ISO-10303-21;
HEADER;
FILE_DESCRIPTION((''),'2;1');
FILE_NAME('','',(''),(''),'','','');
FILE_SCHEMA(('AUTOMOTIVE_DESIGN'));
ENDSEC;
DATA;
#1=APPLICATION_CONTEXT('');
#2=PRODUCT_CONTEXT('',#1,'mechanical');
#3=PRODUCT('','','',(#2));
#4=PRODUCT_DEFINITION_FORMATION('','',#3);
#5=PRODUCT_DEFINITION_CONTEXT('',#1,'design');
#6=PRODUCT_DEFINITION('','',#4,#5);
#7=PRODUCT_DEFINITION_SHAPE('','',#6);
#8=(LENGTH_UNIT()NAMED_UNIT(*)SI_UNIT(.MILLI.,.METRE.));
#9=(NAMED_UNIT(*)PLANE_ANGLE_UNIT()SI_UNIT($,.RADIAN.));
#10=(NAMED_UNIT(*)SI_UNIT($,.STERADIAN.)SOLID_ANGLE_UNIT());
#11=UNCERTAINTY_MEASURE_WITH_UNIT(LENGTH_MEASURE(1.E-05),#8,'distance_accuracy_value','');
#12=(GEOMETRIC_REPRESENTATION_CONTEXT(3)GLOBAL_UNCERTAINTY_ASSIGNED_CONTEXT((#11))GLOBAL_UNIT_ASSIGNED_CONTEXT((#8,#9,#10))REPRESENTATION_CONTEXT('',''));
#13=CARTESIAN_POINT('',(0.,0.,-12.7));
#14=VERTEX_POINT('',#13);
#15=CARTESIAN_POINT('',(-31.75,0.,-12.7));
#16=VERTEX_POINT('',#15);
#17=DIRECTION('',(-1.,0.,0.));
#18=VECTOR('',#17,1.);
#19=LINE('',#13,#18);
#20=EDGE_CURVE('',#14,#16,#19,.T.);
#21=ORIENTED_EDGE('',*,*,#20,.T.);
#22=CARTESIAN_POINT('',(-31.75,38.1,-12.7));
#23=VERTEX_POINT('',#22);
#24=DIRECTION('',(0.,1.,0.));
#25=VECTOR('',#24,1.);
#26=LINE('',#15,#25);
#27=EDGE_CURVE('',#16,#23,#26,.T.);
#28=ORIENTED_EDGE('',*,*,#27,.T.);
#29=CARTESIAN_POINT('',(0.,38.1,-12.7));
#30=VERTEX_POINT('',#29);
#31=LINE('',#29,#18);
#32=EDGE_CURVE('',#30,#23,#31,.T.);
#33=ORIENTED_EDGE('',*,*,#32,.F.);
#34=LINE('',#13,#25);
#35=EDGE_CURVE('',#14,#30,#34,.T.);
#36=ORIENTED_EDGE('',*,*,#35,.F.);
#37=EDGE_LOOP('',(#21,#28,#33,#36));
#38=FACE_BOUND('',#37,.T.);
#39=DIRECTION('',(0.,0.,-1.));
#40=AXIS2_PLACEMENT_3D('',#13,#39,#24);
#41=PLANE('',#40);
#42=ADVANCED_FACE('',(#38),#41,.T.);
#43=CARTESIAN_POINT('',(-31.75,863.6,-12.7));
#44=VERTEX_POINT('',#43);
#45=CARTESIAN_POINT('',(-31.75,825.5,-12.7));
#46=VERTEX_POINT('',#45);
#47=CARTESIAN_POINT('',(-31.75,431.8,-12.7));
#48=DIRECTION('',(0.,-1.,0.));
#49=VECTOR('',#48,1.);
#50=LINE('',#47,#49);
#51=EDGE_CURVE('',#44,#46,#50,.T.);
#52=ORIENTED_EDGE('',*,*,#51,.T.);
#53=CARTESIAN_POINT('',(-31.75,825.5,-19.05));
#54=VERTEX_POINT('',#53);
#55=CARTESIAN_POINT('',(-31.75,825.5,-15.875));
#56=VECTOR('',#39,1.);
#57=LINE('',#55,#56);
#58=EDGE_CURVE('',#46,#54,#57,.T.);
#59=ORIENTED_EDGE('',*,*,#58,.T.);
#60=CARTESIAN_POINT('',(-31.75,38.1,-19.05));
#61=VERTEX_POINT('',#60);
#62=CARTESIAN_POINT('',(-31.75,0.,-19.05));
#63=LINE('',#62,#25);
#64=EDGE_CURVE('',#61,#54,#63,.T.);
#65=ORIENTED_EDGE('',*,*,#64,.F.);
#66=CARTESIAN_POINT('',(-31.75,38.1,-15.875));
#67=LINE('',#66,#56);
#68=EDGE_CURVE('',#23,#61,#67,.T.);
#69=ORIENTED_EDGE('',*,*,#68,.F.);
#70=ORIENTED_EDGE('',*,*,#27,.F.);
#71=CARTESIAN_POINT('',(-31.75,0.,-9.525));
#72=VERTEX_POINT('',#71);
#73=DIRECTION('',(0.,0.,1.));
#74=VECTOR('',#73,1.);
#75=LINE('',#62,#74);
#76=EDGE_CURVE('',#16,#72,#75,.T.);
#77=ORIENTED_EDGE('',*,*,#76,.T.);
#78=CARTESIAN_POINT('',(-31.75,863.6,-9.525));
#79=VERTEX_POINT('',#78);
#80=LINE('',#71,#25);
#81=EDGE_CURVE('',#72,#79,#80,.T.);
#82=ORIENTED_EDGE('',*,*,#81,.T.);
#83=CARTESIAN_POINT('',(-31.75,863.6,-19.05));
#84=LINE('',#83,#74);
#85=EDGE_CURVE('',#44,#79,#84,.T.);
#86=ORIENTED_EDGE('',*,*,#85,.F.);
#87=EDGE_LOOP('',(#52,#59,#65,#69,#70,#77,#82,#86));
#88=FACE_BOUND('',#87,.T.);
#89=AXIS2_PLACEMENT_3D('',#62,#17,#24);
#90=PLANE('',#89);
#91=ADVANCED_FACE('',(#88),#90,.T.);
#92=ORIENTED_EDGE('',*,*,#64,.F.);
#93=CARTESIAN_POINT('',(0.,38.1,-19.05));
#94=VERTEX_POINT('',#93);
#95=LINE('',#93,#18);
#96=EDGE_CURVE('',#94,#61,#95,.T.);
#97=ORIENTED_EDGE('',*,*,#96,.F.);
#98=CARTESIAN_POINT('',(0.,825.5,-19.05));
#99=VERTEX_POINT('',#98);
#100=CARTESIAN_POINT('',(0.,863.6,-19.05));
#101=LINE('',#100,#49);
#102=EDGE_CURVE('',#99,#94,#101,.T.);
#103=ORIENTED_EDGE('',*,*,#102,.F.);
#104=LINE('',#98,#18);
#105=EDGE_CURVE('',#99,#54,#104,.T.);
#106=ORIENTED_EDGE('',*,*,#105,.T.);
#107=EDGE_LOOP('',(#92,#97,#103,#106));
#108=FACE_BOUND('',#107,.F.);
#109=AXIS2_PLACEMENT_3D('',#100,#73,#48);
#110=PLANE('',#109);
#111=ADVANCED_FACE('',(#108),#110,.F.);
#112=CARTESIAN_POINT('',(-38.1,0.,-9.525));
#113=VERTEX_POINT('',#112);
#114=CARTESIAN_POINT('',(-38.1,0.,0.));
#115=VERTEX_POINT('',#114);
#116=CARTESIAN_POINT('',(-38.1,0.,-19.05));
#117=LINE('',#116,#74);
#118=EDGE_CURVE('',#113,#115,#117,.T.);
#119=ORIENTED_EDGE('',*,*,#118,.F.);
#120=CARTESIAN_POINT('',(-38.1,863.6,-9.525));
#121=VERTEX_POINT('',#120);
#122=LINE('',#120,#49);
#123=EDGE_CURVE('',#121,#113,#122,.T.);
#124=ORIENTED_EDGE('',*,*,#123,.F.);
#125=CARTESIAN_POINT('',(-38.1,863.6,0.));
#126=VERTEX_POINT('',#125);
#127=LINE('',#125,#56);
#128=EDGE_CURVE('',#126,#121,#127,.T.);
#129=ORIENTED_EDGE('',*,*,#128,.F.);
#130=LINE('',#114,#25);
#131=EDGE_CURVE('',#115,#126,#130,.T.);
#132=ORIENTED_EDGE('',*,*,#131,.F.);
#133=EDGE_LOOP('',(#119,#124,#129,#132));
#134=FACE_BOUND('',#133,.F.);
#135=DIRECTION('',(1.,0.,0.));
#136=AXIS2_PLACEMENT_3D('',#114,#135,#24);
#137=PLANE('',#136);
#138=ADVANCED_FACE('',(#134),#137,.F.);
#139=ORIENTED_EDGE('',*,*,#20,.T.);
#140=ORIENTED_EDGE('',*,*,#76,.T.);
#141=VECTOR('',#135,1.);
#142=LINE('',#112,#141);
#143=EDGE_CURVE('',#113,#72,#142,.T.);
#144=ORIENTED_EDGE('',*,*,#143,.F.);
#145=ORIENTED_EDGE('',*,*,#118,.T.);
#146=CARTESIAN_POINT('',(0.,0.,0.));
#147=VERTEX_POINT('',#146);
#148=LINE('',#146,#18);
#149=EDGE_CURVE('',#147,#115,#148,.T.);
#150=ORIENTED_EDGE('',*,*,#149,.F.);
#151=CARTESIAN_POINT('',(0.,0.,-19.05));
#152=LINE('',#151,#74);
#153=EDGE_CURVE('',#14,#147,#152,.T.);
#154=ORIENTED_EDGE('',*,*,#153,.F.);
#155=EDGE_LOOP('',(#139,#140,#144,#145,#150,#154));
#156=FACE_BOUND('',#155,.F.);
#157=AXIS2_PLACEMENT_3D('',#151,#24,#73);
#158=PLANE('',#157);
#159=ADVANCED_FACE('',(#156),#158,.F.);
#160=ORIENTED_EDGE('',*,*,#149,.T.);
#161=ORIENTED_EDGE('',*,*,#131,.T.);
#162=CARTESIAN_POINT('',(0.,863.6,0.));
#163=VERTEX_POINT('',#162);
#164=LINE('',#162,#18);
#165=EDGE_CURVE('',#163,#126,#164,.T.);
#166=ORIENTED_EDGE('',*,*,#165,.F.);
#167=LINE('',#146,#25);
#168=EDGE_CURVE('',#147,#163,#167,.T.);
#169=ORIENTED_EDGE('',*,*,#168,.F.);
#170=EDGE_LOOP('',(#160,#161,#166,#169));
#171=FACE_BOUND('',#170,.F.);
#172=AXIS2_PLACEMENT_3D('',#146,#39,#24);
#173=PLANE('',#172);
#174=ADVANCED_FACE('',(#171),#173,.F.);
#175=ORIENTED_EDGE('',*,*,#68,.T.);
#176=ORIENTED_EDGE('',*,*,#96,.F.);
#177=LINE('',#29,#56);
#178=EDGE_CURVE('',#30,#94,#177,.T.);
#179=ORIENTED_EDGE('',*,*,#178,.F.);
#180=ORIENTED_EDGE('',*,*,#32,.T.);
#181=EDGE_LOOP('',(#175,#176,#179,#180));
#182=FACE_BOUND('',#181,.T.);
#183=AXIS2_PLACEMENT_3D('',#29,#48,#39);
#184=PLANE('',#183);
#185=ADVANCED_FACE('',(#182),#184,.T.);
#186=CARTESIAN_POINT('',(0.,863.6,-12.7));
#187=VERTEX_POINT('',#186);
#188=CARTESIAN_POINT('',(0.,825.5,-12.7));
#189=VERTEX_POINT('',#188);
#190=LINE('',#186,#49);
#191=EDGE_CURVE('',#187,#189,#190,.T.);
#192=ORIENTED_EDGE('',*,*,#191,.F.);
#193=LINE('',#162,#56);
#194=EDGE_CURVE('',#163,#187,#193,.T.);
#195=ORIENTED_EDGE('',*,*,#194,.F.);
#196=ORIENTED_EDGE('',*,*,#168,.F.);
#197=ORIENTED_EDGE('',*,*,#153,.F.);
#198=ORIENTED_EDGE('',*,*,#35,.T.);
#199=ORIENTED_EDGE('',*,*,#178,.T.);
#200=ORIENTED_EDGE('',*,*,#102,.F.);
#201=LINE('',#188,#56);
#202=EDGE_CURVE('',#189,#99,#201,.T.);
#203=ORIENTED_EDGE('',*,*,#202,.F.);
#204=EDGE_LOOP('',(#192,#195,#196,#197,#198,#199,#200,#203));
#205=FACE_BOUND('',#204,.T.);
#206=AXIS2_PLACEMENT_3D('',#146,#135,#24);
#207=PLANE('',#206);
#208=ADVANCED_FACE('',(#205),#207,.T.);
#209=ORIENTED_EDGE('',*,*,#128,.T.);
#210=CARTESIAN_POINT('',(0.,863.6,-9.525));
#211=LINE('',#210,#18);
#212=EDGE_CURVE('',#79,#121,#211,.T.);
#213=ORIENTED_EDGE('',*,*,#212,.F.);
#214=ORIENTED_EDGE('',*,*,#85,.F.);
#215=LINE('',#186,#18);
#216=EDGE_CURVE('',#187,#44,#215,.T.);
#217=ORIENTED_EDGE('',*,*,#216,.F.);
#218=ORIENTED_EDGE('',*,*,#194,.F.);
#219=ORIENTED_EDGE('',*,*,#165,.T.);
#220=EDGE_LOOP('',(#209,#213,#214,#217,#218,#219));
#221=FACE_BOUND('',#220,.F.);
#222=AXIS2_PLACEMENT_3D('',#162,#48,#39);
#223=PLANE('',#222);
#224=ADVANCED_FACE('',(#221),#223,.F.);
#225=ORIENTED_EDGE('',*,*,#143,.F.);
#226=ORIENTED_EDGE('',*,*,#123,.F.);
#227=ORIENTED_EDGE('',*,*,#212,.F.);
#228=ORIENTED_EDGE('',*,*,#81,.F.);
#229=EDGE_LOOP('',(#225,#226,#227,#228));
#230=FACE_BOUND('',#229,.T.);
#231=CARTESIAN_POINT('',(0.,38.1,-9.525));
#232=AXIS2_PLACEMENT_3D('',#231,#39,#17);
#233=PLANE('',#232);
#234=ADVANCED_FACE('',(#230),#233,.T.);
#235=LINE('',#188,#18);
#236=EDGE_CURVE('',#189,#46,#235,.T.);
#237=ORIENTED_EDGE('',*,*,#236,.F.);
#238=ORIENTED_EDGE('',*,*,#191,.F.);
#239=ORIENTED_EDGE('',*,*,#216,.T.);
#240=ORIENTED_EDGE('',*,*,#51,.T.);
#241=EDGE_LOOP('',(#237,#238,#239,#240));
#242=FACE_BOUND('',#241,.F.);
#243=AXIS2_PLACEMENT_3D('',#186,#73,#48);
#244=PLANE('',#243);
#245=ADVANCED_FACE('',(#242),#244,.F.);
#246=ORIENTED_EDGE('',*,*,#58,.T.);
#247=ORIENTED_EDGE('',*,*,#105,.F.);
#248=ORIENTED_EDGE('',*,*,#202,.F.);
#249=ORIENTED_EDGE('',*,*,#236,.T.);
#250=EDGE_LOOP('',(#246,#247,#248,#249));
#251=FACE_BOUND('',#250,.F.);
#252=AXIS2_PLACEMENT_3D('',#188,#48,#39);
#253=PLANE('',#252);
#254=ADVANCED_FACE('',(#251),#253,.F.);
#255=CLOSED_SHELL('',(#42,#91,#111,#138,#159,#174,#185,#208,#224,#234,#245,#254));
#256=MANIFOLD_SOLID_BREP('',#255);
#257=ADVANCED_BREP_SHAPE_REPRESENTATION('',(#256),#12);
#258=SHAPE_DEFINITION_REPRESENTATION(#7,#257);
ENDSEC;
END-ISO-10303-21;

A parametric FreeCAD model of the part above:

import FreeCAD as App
import Part
import Sketcher
Q = App.Units.Quantity

doc = App.newDocument("Part")
params = doc.addObject("Spreadsheet::Sheet", "Params")
for row, (alias, value) in enumerate([
    ("sketch1_width", "34 in"),
    ("sketch1_height", "0.75 in"),
    ("pad1_length", "1.5 in"),
    ("sketch2_width", "1.5 in"),
    ("sketch2_height", "0.25 in"),
    ("pocket1_length", "1.5 in"),
    ("sketch3_width", "1.5 in"),
    ("sketch3_height", "0.25 in"),
    ("pocket2_length", "1.5 in"),
    ("sketch4_height", "34 in"),
    ("sketch4_width", "0.25 in"),
    ("pocket3_length", "0.375 in"),
], start=1):
    params.set(f"A{row}", alias)
    params.set(f"B{row}", "=" + value)
    params.setAlias(f"B{row}", alias)

body = doc.addObject("PartDesign::Body", "Body")

# Sketch on YZ plane
sketch1 = body.newObject("Sketcher::SketchObject", "Sketch")
sketch1.AttachmentSupport = (doc.getObject("YZ_Plane"), [""])
sketch1.MapMode = "FlatFace"
sketch1.addGeometry(Part.LineSegment(App.Vector(864, 0, 0), App.Vector(0, 0, 0)), False)
sketch1.addGeometry(Part.LineSegment(App.Vector(0, 0, 0), App.Vector(0, -19, 0)), False)
sketch1.addGeometry(Part.LineSegment(App.Vector(0, -19, 0), App.Vector(864, -19, 0)), False)
sketch1.addGeometry(Part.LineSegment(App.Vector(864, -19, 0), App.Vector(864, 0, 0)), False)
sketch1.addConstraint(Sketcher.Constraint("Coincident", 0, 2, 1, 1))
sketch1.addConstraint(Sketcher.Constraint("Coincident", 1, 2, 2, 1))
sketch1.addConstraint(Sketcher.Constraint("Coincident", 2, 2, 3, 1))
sketch1.addConstraint(Sketcher.Constraint("Coincident", 3, 2, 0, 1))
sketch1.addConstraint(Sketcher.Constraint("Horizontal", 0))
sketch1.addConstraint(Sketcher.Constraint("Vertical", 1))
sketch1.addConstraint(Sketcher.Constraint("Horizontal", 2))
sketch1.addConstraint(Sketcher.Constraint("Vertical", 3))
sketch1.addConstraint(Sketcher.Constraint("Coincident", 0, 2, -1, 1))
sketch1.addConstraint(Sketcher.Constraint("DistanceX", 0, 2, 0, 1, Q("34 in")))
sketch1.addConstraint(Sketcher.Constraint("DistanceY", 1, 2, 1, 1, Q("0.75 in")))
sketch1.setExpression("Constraints[9]", "Params.sketch1_width")
sketch1.setExpression("Constraints[10]", "Params.sketch1_height")
pad1 = body.newObject("PartDesign::Pad", "Pad")
pad1.Profile = sketch1
pad1.setExpression("Length", "Params.pad1_length")
pad1.Reversed = True

# Sketch on YZ plane
sketch2 = body.newObject("Sketcher::SketchObject", "Sketch001")
sketch2.AttachmentSupport = (doc.getObject("YZ_Plane"), [""])
sketch2.MapMode = "FlatFace"
sketch2.addGeometry(Part.LineSegment(App.Vector(0, -13, 0), App.Vector(0, -19, 0)), False)
sketch2.addGeometry(Part.LineSegment(App.Vector(0, -19, 0), App.Vector(38, -19, 0)), False)
sketch2.addGeometry(Part.LineSegment(App.Vector(38, -19, 0), App.Vector(38, -13, 0)), False)
sketch2.addGeometry(Part.LineSegment(App.Vector(38, -13, 0), App.Vector(0, -13, 0)), False)
sketch2.addConstraint(Sketcher.Constraint("Coincident", 0, 2, 1, 1))
sketch2.addConstraint(Sketcher.Constraint("Coincident", 1, 2, 2, 1))
sketch2.addConstraint(Sketcher.Constraint("Coincident", 2, 2, 3, 1))
sketch2.addConstraint(Sketcher.Constraint("Coincident", 3, 2, 0, 1))
sketch2.addConstraint(Sketcher.Constraint("Vertical", 0))
sketch2.addConstraint(Sketcher.Constraint("Horizontal", 1))
sketch2.addConstraint(Sketcher.Constraint("Vertical", 2))
sketch2.addConstraint(Sketcher.Constraint("Horizontal", 3))
sketch2.addConstraint(Sketcher.Constraint("PointOnObject", 0, 2, -2))
sketch2.addConstraint(Sketcher.Constraint("DistanceX", 1, 1, 1, 2, Q("1.5 in")))
sketch2.addConstraint(Sketcher.Constraint("DistanceY", 0, 2, 0, 1, Q("0.25 in")))
sketch2.addConstraint(Sketcher.Constraint("DistanceY", 2, 2, -1, 1, Q("0.5 in")))
sketch2.setExpression("Constraints[9]", "Params.sketch2_width")
sketch2.setExpression("Constraints[10]", "Params.sketch2_height")
pocket1 = body.newObject("PartDesign::Pocket", "Pocket")
pocket1.Profile = sketch2
pocket1.setExpression("Length", "Params.pocket1_length")

# Sketch on YZ plane
sketch3 = body.newObject("Sketcher::SketchObject", "Sketch002")
sketch3.AttachmentSupport = (doc.getObject("YZ_Plane"), [""])
sketch3.MapMode = "FlatFace"
sketch3.addGeometry(Part.LineSegment(App.Vector(826, -13, 0), App.Vector(826, -19, 0)), False)
sketch3.addGeometry(Part.LineSegment(App.Vector(826, -19, 0), App.Vector(864, -19, 0)), False)
sketch3.addGeometry(Part.LineSegment(App.Vector(864, -19, 0), App.Vector(864, -13, 0)), False)
sketch3.addGeometry(Part.LineSegment(App.Vector(864, -13, 0), App.Vector(826, -13, 0)), False)
sketch3.addConstraint(Sketcher.Constraint("Coincident", 0, 2, 1, 1))
sketch3.addConstraint(Sketcher.Constraint("Coincident", 1, 2, 2, 1))
sketch3.addConstraint(Sketcher.Constraint("Coincident", 2, 2, 3, 1))
sketch3.addConstraint(Sketcher.Constraint("Coincident", 3, 2, 0, 1))
sketch3.addConstraint(Sketcher.Constraint("Vertical", 0))
sketch3.addConstraint(Sketcher.Constraint("Horizontal", 1))
sketch3.addConstraint(Sketcher.Constraint("Vertical", 2))
sketch3.addConstraint(Sketcher.Constraint("Horizontal", 3))
sketch3.addConstraint(Sketcher.Constraint("DistanceX", 1, 1, 1, 2, Q("1.5 in")))
sketch3.addConstraint(Sketcher.Constraint("DistanceY", 0, 2, 0, 1, Q("0.25 in")))
sketch3.addConstraint(Sketcher.Constraint("DistanceX", -1, 1, 1, 2, Q("34 in")))
sketch3.addConstraint(Sketcher.Constraint("DistanceY", 2, 2, -1, 1, Q("0.5 in")))
sketch3.setExpression("Constraints[8]", "Params.sketch3_width")
sketch3.setExpression("Constraints[9]", "Params.sketch3_height")
pocket2 = body.newObject("PartDesign::Pocket", "Pocket001")
pocket2.Profile = sketch3
pocket2.setExpression("Length", "Params.pocket2_length")

# Sketch on XY plane
sketch4 = body.newObject("Sketcher::SketchObject", "Sketch003")
sketch4.AttachmentSupport = (doc.getObject("XY_Plane"), [""])
sketch4.MapMode = "FlatFace"
sketch4.AttachmentOffset = App.Placement(App.Vector(0, 0, -0.75 * 25.4), App.Rotation())
sketch4.addGeometry(Part.LineSegment(App.Vector(-32, 0, 0), App.Vector(-38, 0, 0)), False)
sketch4.addGeometry(Part.LineSegment(App.Vector(-38, 0, 0), App.Vector(-38, 864, 0)), False)
sketch4.addGeometry(Part.LineSegment(App.Vector(-38, 864, 0), App.Vector(-32, 864, 0)), False)
sketch4.addGeometry(Part.LineSegment(App.Vector(-32, 864, 0), App.Vector(-32, 0, 0)), False)
sketch4.addConstraint(Sketcher.Constraint("Coincident", 0, 2, 1, 1))
sketch4.addConstraint(Sketcher.Constraint("Coincident", 1, 2, 2, 1))
sketch4.addConstraint(Sketcher.Constraint("Coincident", 2, 2, 3, 1))
sketch4.addConstraint(Sketcher.Constraint("Coincident", 3, 2, 0, 1))
sketch4.addConstraint(Sketcher.Constraint("Horizontal", 0))
sketch4.addConstraint(Sketcher.Constraint("Vertical", 1))
sketch4.addConstraint(Sketcher.Constraint("Horizontal", 2))
sketch4.addConstraint(Sketcher.Constraint("Vertical", 3))
sketch4.addConstraint(Sketcher.Constraint("PointOnObject", 0, 2, -1))
sketch4.addConstraint(Sketcher.Constraint("DistanceY", 1, 1, 1, 2, Q("34 in")))
sketch4.addConstraint(Sketcher.Constraint("DistanceX", 0, 2, 0, 1, Q("0.25 in")))
sketch4.addConstraint(Sketcher.Constraint("DistanceX", 0, 2, -1, 1, Q("1.5 in")))
sketch4.setExpression("Constraints[9]", "Params.sketch4_height")
sketch4.setExpression("Constraints[10]", "Params.sketch4_width")
pocket3 = body.newObject("PartDesign::Pocket", "Pocket002")
pocket3.Profile = sketch4
pocket3.setExpression("Length", "Params.pocket3_length")
pocket3.Reversed = True

doc.recompute()
